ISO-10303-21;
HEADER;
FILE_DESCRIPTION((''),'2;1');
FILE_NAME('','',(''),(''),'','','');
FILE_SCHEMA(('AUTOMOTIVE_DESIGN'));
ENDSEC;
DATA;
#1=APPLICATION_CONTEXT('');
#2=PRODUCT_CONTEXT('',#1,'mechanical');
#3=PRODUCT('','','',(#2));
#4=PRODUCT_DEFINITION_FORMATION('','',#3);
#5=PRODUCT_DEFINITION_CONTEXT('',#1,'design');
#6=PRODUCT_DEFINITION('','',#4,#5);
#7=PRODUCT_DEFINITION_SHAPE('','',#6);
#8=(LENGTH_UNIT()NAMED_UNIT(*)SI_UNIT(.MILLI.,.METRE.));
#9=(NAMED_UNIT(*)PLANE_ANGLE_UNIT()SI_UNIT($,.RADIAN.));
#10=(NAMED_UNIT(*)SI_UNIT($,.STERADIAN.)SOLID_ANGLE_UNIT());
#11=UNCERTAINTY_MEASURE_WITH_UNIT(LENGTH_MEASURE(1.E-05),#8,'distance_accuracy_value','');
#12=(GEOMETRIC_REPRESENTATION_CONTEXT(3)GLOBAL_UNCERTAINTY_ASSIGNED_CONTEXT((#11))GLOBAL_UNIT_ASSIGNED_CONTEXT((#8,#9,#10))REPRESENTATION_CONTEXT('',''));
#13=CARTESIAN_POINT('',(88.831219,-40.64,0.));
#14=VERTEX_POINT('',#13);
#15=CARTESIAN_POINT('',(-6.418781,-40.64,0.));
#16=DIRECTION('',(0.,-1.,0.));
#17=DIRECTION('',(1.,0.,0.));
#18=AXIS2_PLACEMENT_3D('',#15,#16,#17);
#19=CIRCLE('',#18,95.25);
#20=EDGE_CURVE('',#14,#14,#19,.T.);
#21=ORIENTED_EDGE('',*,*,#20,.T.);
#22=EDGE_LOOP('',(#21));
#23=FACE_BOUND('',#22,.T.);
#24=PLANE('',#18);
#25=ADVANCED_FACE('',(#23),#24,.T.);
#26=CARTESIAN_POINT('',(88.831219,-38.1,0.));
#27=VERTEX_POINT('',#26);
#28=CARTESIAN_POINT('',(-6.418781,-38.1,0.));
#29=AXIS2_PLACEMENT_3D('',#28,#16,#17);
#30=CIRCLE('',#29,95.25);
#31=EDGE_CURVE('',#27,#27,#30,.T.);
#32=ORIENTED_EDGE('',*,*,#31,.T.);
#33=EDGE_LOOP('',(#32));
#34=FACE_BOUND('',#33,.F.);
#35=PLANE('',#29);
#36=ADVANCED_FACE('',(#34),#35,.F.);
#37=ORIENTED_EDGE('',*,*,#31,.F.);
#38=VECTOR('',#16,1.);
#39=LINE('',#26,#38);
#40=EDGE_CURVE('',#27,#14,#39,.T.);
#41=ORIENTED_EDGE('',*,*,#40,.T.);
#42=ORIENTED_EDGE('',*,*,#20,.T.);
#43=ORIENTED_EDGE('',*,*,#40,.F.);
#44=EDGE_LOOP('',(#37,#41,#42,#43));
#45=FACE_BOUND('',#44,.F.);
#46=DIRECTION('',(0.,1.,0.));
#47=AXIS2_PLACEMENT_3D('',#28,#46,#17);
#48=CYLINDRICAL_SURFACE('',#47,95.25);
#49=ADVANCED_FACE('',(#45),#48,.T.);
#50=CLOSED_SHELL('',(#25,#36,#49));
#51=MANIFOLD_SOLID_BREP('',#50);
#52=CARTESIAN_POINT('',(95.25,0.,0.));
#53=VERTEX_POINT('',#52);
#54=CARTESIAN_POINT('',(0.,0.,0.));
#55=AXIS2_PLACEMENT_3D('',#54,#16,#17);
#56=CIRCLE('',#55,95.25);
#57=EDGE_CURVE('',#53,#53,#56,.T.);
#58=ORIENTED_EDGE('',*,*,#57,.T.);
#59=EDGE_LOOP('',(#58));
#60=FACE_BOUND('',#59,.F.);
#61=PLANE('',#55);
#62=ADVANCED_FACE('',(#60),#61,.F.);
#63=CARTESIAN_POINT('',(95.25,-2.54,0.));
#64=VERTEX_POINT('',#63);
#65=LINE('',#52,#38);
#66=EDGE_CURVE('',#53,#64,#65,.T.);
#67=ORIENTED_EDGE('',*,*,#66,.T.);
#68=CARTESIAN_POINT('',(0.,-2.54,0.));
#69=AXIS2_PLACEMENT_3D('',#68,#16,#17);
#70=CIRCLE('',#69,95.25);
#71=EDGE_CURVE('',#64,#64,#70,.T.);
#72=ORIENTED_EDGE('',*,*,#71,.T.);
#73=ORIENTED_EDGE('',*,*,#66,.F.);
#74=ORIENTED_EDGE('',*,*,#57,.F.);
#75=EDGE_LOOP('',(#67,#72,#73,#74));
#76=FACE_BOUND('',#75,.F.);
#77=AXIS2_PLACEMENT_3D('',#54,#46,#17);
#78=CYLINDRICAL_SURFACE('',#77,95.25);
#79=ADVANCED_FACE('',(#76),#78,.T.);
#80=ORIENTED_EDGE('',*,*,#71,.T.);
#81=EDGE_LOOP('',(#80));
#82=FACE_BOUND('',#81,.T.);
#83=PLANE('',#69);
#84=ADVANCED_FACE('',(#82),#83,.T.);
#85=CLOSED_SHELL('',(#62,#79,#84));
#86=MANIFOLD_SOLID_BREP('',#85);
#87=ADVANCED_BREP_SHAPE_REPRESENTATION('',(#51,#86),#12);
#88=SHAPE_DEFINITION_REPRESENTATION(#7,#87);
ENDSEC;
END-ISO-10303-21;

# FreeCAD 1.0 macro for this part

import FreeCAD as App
import Part
import Sketcher

V = App.Vector
Q = App.Units.Quantity

doc = App.newDocument("Part")
body = doc.addObject("PartDesign::Body", "Body")

# Sketch on XZ plane
sketch1 = body.newObject("Sketcher::SketchObject", "Sketch")
sketch1.AttachmentSupport = (doc.getObject("XZ_Plane"), [""])
sketch1.MapMode = "FlatFace"
sketch1.addGeometry(Part.Circle(V(0, 0, 0), V(0, 0, 1), 95.25), False)
sketch1.addConstraint([
    Sketcher.Constraint("Coincident", 0, 3, -1, 1),
    Sketcher.Constraint("Diameter", 0, Q("7.5 in")),
])
pad1 = body.newObject("PartDesign::Pad", "Pad")
pad1.Profile = sketch1
pad1.Length = Q("0.1 in")
body2 = doc.addObject("PartDesign::Body", "Body001")

# Sketch on XZ plane
sketch2 = body2.newObject("Sketcher::SketchObject", "Sketch001")
sketch2.AttachmentSupport = (doc.getObject("XZ_Plane001"), [""])
sketch2.MapMode = "FlatFace"
sketch2.AttachmentOffset = App.Placement(V(0, 0, 1.5 * 25.4), App.Rotation())
sketch2.addGeometry(Part.Circle(V(-6.418781, 0, 0), V(0, 0, 1), 95.25), False)
sketch2.addConstraint([
    Sketcher.Constraint("PointOnObject", 0, 3, -1),
    Sketcher.Constraint("Diameter", 0, Q("7.5 in")),
    Sketcher.Constraint("DistanceX", 0, 3, -1, 1, 6.418781),
])
pad2 = body2.newObject("PartDesign::Pad", "Pad001")
pad2.Profile = sketch2
pad2.Length = Q("0.1 in")

doc.recompute()
